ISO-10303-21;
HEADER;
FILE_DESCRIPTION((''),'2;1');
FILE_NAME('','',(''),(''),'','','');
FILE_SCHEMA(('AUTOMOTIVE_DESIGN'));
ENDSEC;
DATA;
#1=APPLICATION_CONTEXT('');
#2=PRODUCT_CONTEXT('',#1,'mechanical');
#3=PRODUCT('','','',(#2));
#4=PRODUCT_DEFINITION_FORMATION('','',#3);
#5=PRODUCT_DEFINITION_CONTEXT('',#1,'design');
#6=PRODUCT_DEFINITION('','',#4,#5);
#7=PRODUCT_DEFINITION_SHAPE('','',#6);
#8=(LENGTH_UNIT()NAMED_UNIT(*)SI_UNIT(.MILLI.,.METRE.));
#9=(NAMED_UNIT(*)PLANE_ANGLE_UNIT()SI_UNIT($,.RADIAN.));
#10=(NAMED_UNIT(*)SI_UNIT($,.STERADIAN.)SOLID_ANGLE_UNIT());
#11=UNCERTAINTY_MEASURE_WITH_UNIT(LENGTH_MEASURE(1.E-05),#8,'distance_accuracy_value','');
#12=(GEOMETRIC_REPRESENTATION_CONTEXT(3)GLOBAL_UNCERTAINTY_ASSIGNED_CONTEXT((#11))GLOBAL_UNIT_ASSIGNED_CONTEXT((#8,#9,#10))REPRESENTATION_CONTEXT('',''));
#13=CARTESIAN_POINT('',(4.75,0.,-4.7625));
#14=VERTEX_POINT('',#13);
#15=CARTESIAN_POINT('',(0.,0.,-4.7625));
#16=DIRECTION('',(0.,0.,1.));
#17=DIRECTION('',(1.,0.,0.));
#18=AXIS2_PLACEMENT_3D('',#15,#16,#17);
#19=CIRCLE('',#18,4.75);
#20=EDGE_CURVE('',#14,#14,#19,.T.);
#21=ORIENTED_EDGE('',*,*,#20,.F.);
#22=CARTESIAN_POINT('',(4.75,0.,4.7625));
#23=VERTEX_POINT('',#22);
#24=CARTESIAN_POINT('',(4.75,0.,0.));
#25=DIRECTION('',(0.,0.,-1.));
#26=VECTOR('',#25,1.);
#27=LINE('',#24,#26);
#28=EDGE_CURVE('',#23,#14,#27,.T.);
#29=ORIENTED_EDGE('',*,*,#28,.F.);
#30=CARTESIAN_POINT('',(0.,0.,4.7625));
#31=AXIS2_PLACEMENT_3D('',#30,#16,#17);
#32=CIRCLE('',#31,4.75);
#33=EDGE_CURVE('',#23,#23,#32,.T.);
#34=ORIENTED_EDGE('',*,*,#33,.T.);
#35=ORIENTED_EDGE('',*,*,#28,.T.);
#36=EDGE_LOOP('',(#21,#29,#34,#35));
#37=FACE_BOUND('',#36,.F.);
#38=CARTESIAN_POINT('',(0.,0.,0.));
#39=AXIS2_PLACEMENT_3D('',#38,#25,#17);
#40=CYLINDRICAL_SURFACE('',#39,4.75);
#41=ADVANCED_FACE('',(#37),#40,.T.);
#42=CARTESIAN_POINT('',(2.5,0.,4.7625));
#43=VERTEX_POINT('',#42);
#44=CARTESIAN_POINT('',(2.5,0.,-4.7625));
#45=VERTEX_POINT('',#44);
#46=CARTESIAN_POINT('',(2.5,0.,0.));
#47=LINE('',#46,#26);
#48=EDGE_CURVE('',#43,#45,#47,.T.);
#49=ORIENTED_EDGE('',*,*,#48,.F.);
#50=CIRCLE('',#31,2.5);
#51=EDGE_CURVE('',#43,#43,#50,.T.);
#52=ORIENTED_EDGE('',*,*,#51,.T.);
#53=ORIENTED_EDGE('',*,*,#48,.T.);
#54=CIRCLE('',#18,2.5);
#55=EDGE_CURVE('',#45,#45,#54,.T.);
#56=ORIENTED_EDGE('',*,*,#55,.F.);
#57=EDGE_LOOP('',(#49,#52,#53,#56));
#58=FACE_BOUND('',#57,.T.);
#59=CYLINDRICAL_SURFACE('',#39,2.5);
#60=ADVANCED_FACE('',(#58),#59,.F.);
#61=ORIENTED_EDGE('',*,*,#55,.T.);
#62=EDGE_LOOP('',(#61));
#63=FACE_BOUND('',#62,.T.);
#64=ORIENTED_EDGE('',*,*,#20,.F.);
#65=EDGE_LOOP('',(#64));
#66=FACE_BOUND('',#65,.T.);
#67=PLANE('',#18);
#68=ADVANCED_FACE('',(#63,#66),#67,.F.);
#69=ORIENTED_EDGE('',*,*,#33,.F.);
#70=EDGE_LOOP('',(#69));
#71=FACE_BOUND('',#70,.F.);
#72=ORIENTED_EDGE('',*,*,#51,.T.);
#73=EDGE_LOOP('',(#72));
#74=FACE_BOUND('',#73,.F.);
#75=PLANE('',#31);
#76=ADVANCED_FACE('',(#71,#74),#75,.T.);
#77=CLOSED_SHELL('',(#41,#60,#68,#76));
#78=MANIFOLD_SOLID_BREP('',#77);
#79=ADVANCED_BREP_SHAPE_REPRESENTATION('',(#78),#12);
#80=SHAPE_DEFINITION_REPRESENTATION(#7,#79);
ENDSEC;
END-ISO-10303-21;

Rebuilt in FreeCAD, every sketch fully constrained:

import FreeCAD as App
import Part
import Sketcher
from FreeCAD import Vector
Q = App.Units.Quantity


def add_polygon(sketch, points):
    """Adds a closed chain of lines whose ends are joined by coincident constraints."""
    first, n = sketch.GeometryCount, len(points)
    for a, b in zip(points, points[1:] + points[:1]):
        sketch.addGeometry(Part.LineSegment(App.Vector(*a, 0), App.Vector(*b, 0)), False)
    for i in range(n):
        sketch.addConstraint(Sketcher.Constraint("Coincident", first + i, 2, first + (i + 1) % n, 1))

doc = App.newDocument("Part")
body = doc.addObject("PartDesign::Body", "Body")

sketch1 = body.newObject("Sketcher::SketchObject", "Sketch")
sketch1.AttachmentSupport = (doc.getObject("XZ_Plane"), [""])
sketch1.MapMode = "FlatFace"
add_polygon(sketch1, [(2.5, -4.8), (2.5, 4.8), (4.8, 4.8), (4.8, -4.8)])
sketch1.addConstraint(Sketcher.Constraint("Vertical", 0))
sketch1.addConstraint(Sketcher.Constraint("Horizontal", 1))
sketch1.addConstraint(Sketcher.Constraint("Vertical", 2))
sketch1.addConstraint(Sketcher.Constraint("Horizontal", 3))
sketch1.addConstraint(Sketcher.Constraint("DistanceY", 0, 1, 0, 2, Q("0.375 in")))
sketch1.addConstraint(Sketcher.Constraint("DistanceY", -1, 1, 0, 2, Q("0.1875 in")))
sketch1.addConstraint(Sketcher.Constraint("DistanceX", 1, 1, 1, 2, Q("2.25 mm")))
sketch1.addConstraint(Sketcher.Constraint("DistanceX", -1, 1, 0, 2, Q("2.5 mm")))
revolution = body.newObject("PartDesign::Revolution", "Revolution")
revolution.Profile = sketch1
revolution.ReferenceAxis = (sketch1, ["V_Axis"])
revolution.Angle = 360

doc.recompute()
